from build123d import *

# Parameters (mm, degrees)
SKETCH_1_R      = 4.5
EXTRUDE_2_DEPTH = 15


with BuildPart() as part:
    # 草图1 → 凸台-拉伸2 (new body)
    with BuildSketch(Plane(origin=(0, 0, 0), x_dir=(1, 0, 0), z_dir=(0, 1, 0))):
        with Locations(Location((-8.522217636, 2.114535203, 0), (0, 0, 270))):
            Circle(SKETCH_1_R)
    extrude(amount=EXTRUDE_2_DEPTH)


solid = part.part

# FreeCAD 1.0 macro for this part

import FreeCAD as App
import Part
import Sketcher
from FreeCAD import Vector
Q = App.Units.Quantity

doc = App.newDocument("Part")
body = doc.addObject("PartDesign::Body", "Body")

# Sketch on XZ plane
sketch1 = body.newObject("Sketcher::SketchObject", "Sketch")
sketch1.AttachmentSupport = (doc.getObject("XZ_Plane"), [""])
sketch1.MapMode = "FlatFace"
sketch1.addGeometry(Part.Circle(Vector(-8.5, -2.1, 0), Vector(0, 0, 1), 4.5), False)
sketch1.addConstraint(Sketcher.Constraint("Diameter", 0, Q("9 mm")))
sketch1.addConstraint(Sketcher.Constraint("DistanceX", 0, 3, -1, 1, Q("8.522218 mm")))
sketch1.addConstraint(Sketcher.Constraint("DistanceY", 0, 3, -1, 1, Q("2.114535 mm")))
pad1 = body.newObject("PartDesign::Pad", "Pad")
pad1.Profile = sketch1
pad1.Length = 15
pad1.Reversed = True

doc.recompute()
